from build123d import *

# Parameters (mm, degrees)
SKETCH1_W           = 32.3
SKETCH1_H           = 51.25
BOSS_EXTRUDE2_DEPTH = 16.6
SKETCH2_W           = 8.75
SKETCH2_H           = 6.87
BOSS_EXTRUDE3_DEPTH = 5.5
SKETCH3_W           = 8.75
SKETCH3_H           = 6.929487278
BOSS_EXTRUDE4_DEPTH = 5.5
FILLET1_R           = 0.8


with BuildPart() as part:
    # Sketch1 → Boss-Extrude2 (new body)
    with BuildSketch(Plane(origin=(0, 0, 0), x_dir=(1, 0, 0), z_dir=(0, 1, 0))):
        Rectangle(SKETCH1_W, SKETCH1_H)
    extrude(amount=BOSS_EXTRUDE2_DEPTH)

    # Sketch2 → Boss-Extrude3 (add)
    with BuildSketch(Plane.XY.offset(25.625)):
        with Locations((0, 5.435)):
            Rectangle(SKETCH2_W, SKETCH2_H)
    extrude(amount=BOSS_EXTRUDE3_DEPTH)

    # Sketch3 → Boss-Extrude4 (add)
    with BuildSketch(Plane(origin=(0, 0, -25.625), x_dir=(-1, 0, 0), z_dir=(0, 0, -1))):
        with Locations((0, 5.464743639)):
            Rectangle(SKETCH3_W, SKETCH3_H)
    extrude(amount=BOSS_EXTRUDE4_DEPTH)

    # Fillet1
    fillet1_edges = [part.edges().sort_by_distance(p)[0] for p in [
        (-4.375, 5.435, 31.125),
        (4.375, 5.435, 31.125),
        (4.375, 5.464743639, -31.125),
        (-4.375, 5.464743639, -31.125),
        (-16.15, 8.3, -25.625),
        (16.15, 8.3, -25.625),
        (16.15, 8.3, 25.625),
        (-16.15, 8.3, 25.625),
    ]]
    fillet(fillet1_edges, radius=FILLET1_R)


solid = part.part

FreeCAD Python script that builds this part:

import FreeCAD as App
import Part
import Sketcher
from FreeCAD import Vector


def edges_at(feature, points):
    """Names of the edges that pass closest to the given points."""
    edges = feature.Shape.Edges
    near = lambda p: min(range(len(edges)), key=lambda i: edges[i].distToShape(Part.Vertex(*p))[0])
    return sorted({f"Edge{near(p) + 1}" for p in points})

doc = App.newDocument("Part")
params = doc.addObject("Spreadsheet::Sheet", "Params")
for row, (alias, value) in enumerate([
    ("sketch1_width", "32.3 mm"),
    ("sketch1_height", "51.25 mm"),
    ("pad1_length", "16.6 mm"),
    ("sketch2_width", "8.75 mm"),
    ("sketch2_height", "6.87 mm"),
    ("pad2_length", "5.5 mm"),
    ("sketch3_width", "8.75 mm"),
    ("pad3_length", "5.5 mm"),
    ("fillet_radius", "0.8 mm"),
], start=1):
    params.set(f"A{row}", alias)
    params.set(f"B{row}", "=" + value)
    params.setAlias(f"B{row}", alias)

body = doc.addObject("PartDesign::Body", "Body")

sketch1 = body.newObject("Sketcher::SketchObject", "Sketch")
sketch1.AttachmentSupport = (doc.getObject("XZ_Plane"), [""])
sketch1.MapMode = "FlatFace"
sketch1.addGeometry(Part.LineSegment(Vector(-16.15, -25.625, 0), Vector(-16.15, 25.625, 0)), False)
sketch1.addGeometry(Part.LineSegment(Vector(-16.15, 25.625, 0), Vector(16.15, 25.625, 0)), False)
sketch1.addGeometry(Part.LineSegment(Vector(16.15, 25.625, 0), Vector(16.15, -25.625, 0)), False)
sketch1.addGeometry(Part.LineSegment(Vector(16.15, -25.625, 0), Vector(-16.15, -25.625, 0)), False)
sketch1.addConstraint(Sketcher.Constraint("Coincident", 0, 2, 1, 1))
sketch1.addConstraint(Sketcher.Constraint("Coincident", 1, 2, 2, 1))
sketch1.addConstraint(Sketcher.Constraint("Coincident", 2, 2, 3, 1))
sketch1.addConstraint(Sketcher.Constraint("Coincident", 3, 2, 0, 1))
sketch1.addConstraint(Sketcher.Constraint("Vertical", 0))
sketch1.addConstraint(Sketcher.Constraint("Horizontal", 1))
sketch1.addConstraint(Sketcher.Constraint("Vertical", 2))
sketch1.addConstraint(Sketcher.Constraint("Horizontal", 3))
sketch1.addConstraint(Sketcher.Constraint("Symmetric", 0, 2, 2, 2, -1, 1))
sketch1.addConstraint(Sketcher.Constraint("DistanceX", 1, 1, 1, 2, 32.3))
sketch1.addConstraint(Sketcher.Constraint("DistanceY", 0, 1, 0, 2, 51.25))
sketch1.setExpression("Constraints[9]", "Params.sketch1_width")
sketch1.setExpression("Constraints[10]", "Params.sketch1_height")
pad1 = body.newObject("PartDesign::Pad", "Pad")
pad1.Profile = sketch1
pad1.setExpression("Length", "Params.pad1_length")
pad1.Reversed = True

sketch2 = body.newObject("Sketcher::SketchObject", "Sketch001")
sketch2.AttachmentSupport = (doc.getObject("XY_Plane"), [""])
sketch2.MapMode = "FlatFace"
sketch2.AttachmentOffset = App.Placement(Vector(0, 0, 25.625), App.Rotation())
sketch2.addGeometry(Part.LineSegment(Vector(-4.375, 8.87, 0), Vector(-4.375, 2, 0)), False)
sketch2.addGeometry(Part.LineSegment(Vector(-4.375, 2, 0), Vector(4.375, 2, 0)), False)
sketch2.addGeometry(Part.LineSegment(Vector(4.375, 2, 0), Vector(4.375, 8.87, 0)), False)
sketch2.addGeometry(Part.LineSegment(Vector(4.375, 8.87, 0), Vector(-4.375, 8.87, 0)), False)
sketch2.addConstraint(Sketcher.Constraint("Coincident", 0, 2, 1, 1))
sketch2.addConstraint(Sketcher.Constraint("Coincident", 1, 2, 2, 1))
sketch2.addConstraint(Sketcher.Constraint("Coincident", 2, 2, 3, 1))
sketch2.addConstraint(Sketcher.Constraint("Coincident", 3, 2, 0, 1))
sketch2.addConstraint(Sketcher.Constraint("Vertical", 0))
sketch2.addConstraint(Sketcher.Constraint("Horizontal", 1))
sketch2.addConstraint(Sketcher.Constraint("Vertical", 2))
sketch2.addConstraint(Sketcher.Constraint("Horizontal", 3))
sketch2.addConstraint(Sketcher.Constraint("DistanceY", -1, 1, 0, 2, 2.0))
sketch2.addConstraint(Sketcher.Constraint("DistanceX", 1, 1, 1, 2, 8.75))
sketch2.addConstraint(Sketcher.Constraint("DistanceY", 0, 2, 0, 1, 6.87))
sketch2.addConstraint(Sketcher.Constraint("DistanceX", 0, 2, -1, 1, 4.375))
sketch2.setExpression("Constraints[9]", "Params.sketch2_width")
sketch2.setExpression("Constraints[10]", "Params.sketch2_height")
pad2 = body.newObject("PartDesign::Pad", "Pad001")
pad2.Profile = sketch2
pad2.setExpression("Length", "Params.pad2_length")

sketch3 = body.newObject("Sketcher::SketchObject", "Sketch002")
sketch3.AttachmentSupport = (doc.getObject("XY_Plane"), [""])
sketch3.MapMode = "FlatFace"
sketch3.AttachmentOffset = App.Placement(Vector(0, 0, -25.625), App.Rotation())
sketch3.addGeometry(Part.LineSegment(Vector(4.375, 8.929487, 0), Vector(4.375, 2, 0)), False)
sketch3.addGeometry(Part.LineSegment(Vector(4.375, 2, 0), Vector(-4.375, 2, 0)), False)
sketch3.addGeometry(Part.LineSegment(Vector(-4.375, 2, 0), Vector(-4.375, 8.929487, 0)), False)
sketch3.addGeometry(Part.LineSegment(Vector(-4.375, 8.929487, 0), Vector(4.375, 8.929487, 0)), False)
sketch3.addConstraint(Sketcher.Constraint("Coincident", 0, 2, 1, 1))
sketch3.addConstraint(Sketcher.Constraint("Coincident", 1, 2, 2, 1))
sketch3.addConstraint(Sketcher.Constraint("Coincident", 2, 2, 3, 1))
sketch3.addConstraint(Sketcher.Constraint("Coincident", 3, 2, 0, 1))
sketch3.addConstraint(Sketcher.Constraint("Vertical", 0))
sketch3.addConstraint(Sketcher.Constraint("Horizontal", 1))
sketch3.addConstraint(Sketcher.Constraint("Vertical", 2))
sketch3.addConstraint(Sketcher.Constraint("Horizontal", 3))
sketch3.addConstraint(Sketcher.Constraint("DistanceY", -1, 1, 0, 2, 2.0))
sketch3.addConstraint(Sketcher.Constraint("DistanceX", 1, 2, 1, 1, 8.75))
sketch3.addConstraint(Sketcher.Constraint("DistanceX", -1, 1, 0, 2, 4.375))
sketch3.addConstraint(Sketcher.Constraint("DistanceY", 0, 2, 0, 1, 6.929487))
sketch3.setExpression("Constraints[9]", "Params.sketch3_width")
pad3 = body.newObject("PartDesign::Pad", "Pad002")
pad3.Profile = sketch3
pad3.setExpression("Length", "Params.pad3_length")
pad3.Reversed = True
doc.recompute()

fillet = body.newObject("PartDesign::Fillet", "Fillet")
fillet.Base = (pad3, edges_at(pad3, [
    (-4.375, 5.435, 31.125),
    (4.375, 5.435, 31.125),
    (4.375, 5.465, -31.125),
    (-4.375, 5.465, -31.125),
    (-16.15, 8.3, -25.625),
    (16.15, 8.3, -25.625),
    (16.15, 8.3, 25.625),
    (-16.15, 8.3, 25.625),
]))
fillet.setExpression("Radius", "Params.fillet_radius")

doc.recompute()
